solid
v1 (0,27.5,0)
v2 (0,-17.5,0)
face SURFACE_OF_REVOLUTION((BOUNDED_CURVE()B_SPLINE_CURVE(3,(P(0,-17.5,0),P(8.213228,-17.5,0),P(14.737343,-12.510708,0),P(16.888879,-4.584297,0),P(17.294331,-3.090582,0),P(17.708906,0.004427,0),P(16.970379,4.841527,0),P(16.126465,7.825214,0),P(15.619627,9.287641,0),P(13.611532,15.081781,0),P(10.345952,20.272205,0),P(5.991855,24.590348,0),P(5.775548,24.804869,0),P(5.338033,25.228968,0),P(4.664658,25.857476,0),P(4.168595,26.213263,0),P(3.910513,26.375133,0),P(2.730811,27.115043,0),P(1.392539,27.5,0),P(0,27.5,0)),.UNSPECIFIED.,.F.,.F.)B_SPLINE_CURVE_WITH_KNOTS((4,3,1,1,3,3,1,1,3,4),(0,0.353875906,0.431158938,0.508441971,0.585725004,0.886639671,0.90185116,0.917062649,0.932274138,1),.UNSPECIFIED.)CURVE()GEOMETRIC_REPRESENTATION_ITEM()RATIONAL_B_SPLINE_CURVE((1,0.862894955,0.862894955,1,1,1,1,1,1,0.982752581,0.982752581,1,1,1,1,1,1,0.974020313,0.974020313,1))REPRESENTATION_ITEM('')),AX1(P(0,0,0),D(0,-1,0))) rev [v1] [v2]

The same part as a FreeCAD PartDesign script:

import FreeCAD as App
import Part
import Sketcher

V = App.Vector

doc = App.newDocument("Part")
params = doc.addObject("Spreadsheet::Sheet", "Params")
for row, (alias, value) in enumerate([
    ("revolution_angle", "360 deg"),
], start=1):
    params.set(f"A{row}", alias)
    params.set(f"B{row}", "=" + value)
    params.setAlias(f"B{row}", alias)

body = doc.addObject("PartDesign::Body", "Body")

# Sketch on XY plane
sketch1 = doc.addObject("Sketcher::SketchObject", "Sketch")
body.addObject(sketch1)
sketch1.AttachmentSupport = (doc.XY_Plane, [""])
sketch1.MapMode = "FlatFace"
sketch1.addGeometry([
    Part.LineSegment(V(0, 27.5, 0), V(0, -17.5, 0)),
    Part.BSplineCurve([V(0, 27.5, 0), V(1.392539, 27.5, 0), V(2.730811, 27.115043, 0), V(3.910513, 26.375133, 0), V(4.168595, 26.213263, 0), V(4.664658, 25.857476, 0), V(5.338033, 25.228968, 0), V(5.775548, 24.804869, 0), V(5.991855, 24.590348, 0), V(10.345952, 20.272205, 0), V(13.611532, 15.081781, 0), V(15.619627, 9.287641, 0), V(16.126465, 7.825214, 0), V(16.970379, 4.841527, 0), V(17.708906, 0.004427, 0), V(17.294331, -3.090582, 0), V(16.888879, -4.584297, 0), V(14.737343, -12.510708, 0), V(8.213228, -17.5, 0), V(0, -17.5, 0)], [4, 3, 1, 1, 3, 3, 1, 1, 3, 4], [0, 0.067725862, 0.082937351, 0.09814884, 0.113360329, 0.414274996, 0.491558029, 0.568841062, 0.646124094, 1], False, 3, [1, 0.974020313, 0.974020313, 1, 1, 1, 1, 1, 1, 0.982752581, 0.982752581, 1, 1, 1, 1, 1, 1, 0.862894955, 0.862894955, 1], False),
], False)
sketch1.addConstraint([
    Sketcher.Constraint("Block", 1),
    Sketcher.Constraint("Coincident", 0, 1, 1, 1),
    Sketcher.Constraint("Coincident", 1, 2, 0, 2),
])
revolution = doc.addObject("PartDesign::Revolution", "Revolution")
body.addObject(revolution)
revolution.Profile = sketch1
revolution.ReferenceAxis = (sketch1, ["V_Axis"])
revolution.setExpression("Angle", "Params.revolution_angle")

doc.recompute()
